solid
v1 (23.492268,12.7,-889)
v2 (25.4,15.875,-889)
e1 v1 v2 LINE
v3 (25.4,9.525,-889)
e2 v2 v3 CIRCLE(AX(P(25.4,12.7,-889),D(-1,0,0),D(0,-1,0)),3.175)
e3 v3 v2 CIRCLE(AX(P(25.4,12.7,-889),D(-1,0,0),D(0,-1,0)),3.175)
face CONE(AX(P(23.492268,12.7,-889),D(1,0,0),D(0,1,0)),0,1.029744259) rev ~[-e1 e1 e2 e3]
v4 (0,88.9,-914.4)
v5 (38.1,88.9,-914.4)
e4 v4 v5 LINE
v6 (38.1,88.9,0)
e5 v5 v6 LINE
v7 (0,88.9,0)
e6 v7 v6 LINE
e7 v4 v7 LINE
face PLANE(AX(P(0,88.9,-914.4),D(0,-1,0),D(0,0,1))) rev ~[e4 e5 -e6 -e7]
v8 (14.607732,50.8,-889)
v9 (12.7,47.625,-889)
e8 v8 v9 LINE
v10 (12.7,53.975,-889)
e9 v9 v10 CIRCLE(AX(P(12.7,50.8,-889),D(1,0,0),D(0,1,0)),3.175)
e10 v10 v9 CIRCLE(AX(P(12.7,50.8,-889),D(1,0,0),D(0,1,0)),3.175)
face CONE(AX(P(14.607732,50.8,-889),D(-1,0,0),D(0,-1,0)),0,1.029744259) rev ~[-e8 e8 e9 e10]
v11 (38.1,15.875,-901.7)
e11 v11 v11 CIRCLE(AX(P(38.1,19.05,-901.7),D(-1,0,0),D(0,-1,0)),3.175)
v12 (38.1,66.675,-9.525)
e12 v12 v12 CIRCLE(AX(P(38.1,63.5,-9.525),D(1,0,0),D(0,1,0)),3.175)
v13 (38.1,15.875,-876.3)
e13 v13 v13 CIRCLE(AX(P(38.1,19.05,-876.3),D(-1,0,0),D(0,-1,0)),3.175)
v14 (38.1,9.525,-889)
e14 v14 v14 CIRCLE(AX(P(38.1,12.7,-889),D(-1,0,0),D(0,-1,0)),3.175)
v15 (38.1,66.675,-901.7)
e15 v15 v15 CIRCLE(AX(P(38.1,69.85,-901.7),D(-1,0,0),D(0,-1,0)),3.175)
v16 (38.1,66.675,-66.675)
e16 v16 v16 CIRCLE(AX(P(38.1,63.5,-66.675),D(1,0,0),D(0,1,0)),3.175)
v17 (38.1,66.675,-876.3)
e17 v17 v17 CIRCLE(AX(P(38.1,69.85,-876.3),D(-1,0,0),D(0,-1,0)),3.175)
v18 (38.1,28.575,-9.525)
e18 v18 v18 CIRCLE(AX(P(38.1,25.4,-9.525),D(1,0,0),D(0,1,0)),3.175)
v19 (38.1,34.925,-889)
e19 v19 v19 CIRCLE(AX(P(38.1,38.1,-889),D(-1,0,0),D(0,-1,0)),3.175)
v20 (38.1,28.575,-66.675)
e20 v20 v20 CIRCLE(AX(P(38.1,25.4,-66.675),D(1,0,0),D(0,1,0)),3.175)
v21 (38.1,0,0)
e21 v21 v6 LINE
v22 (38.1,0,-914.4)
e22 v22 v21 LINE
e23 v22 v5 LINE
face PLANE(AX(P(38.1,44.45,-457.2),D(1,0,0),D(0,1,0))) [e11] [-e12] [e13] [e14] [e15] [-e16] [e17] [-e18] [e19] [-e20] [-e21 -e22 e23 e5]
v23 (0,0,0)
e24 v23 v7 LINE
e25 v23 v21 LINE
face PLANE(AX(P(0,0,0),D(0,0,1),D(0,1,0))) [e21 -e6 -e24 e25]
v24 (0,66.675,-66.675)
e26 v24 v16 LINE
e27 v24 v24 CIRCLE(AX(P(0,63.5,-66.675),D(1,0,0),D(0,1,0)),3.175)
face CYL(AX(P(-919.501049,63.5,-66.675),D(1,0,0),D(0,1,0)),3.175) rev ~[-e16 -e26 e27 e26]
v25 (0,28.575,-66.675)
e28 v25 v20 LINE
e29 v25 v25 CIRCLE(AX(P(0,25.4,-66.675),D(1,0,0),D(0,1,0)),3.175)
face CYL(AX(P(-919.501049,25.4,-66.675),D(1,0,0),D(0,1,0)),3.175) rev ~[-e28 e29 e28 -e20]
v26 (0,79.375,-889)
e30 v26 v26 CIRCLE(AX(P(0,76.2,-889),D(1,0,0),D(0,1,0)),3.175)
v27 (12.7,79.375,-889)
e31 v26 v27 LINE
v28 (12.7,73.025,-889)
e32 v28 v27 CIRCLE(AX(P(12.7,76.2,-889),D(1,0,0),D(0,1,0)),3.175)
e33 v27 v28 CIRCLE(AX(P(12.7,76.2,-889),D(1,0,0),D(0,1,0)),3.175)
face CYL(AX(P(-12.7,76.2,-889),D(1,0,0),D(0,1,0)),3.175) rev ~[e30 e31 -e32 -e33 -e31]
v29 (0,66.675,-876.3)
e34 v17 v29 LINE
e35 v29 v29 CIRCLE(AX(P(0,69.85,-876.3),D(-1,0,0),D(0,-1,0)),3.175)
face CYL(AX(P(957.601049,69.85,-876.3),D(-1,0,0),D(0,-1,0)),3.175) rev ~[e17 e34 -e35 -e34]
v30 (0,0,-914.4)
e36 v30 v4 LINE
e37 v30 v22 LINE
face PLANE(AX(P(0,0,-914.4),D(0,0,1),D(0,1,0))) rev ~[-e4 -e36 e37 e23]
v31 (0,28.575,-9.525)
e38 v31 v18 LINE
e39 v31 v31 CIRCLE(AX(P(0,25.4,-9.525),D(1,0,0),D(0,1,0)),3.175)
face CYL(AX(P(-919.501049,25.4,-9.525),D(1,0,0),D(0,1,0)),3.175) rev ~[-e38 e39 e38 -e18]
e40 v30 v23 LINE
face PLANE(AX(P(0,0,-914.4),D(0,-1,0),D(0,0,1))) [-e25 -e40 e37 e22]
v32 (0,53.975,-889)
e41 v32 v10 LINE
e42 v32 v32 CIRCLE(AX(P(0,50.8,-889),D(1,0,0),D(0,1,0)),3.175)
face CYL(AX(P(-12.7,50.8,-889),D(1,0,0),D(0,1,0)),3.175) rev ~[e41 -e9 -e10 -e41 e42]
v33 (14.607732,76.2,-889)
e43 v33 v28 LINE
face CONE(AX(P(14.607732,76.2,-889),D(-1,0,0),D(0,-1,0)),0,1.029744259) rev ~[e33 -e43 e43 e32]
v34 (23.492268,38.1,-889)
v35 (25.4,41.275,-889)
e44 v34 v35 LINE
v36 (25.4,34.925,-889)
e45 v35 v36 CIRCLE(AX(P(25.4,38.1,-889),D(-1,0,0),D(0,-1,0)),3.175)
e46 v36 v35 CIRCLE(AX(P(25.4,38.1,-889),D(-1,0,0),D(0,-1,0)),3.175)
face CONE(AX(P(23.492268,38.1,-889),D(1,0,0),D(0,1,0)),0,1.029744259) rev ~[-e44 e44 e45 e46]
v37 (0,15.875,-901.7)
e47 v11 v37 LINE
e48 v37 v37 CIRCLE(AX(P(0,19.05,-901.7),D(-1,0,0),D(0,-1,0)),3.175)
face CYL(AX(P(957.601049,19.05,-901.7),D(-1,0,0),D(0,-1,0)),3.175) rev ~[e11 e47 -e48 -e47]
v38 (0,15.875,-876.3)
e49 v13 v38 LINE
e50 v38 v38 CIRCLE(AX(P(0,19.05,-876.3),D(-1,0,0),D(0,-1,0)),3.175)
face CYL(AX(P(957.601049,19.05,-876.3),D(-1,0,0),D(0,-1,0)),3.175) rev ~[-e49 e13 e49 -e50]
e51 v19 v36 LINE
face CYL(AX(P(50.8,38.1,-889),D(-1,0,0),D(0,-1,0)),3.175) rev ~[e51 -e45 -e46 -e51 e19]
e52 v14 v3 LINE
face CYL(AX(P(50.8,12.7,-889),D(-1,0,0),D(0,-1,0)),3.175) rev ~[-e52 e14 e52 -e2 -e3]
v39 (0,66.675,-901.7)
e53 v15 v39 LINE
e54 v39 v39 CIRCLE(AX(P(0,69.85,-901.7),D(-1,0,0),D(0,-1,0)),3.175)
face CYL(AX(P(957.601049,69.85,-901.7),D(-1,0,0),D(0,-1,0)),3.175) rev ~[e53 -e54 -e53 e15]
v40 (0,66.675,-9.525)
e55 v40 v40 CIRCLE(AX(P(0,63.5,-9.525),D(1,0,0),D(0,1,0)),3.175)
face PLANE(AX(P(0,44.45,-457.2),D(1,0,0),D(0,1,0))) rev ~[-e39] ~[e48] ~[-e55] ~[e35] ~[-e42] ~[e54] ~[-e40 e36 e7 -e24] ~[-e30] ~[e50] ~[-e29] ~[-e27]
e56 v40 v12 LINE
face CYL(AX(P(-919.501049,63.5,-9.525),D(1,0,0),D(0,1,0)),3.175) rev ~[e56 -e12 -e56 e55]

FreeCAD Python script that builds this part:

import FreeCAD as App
import Part
import Sketcher

V = App.Vector
Q = App.Units.Quantity


def add_polygon(sketch, points):
    """Adds a closed chain of lines whose ends are joined by coincident constraints."""
    first, n = sketch.GeometryCount, len(points)
    for a, b in zip(points, points[1:] + points[:1]):
        sketch.addGeometry(Part.LineSegment(App.Vector(*a, 0), App.Vector(*b, 0)), False)
    for i in range(n):
        sketch.addConstraint(Sketcher.Constraint("Coincident", first + i, 2, first + (i + 1) % n, 1))

doc = App.newDocument("Part")
body = doc.addObject("PartDesign::Body", "Body")

# Sketch on YZ plane
sketch1 = doc.addObject("Sketcher::SketchObject", "Sketch")
body.addObject(sketch1)
sketch1.AttachmentSupport = (doc.YZ_Plane, [""])
sketch1.MapMode = "FlatFace"
add_polygon(sketch1, [(0, 0), (0, -914.4), (88.9, -914.4), (88.9, 0)])  # lines 0-3
sketch1.addConstraint([
    Sketcher.Constraint("Vertical", 0),
    Sketcher.Constraint("Horizontal", 1),
    Sketcher.Constraint("Vertical", 2),
    Sketcher.Constraint("Horizontal", 3),
    Sketcher.Constraint("Coincident", 3, 2, -1, 1),
    Sketcher.Constraint("DistanceY", 0, 2, 0, 1, Q("36 in")),
    Sketcher.Constraint("DistanceX", 1, 1, 1, 2, Q("3.5 in")),
])
pad1 = doc.addObject("PartDesign::Pad", "Pad")
body.addObject(pad1)
pad1.Profile = sketch1
pad1.Length = Q("1.5 in")

# Sketch on YZ plane
sketch2 = doc.addObject("Sketcher::SketchObject", "Sketch001")
body.addObject(sketch2)
sketch2.AttachmentSupport = (doc.YZ_Plane, [""])
sketch2.MapMode = "FlatFace"
sketch2.addGeometry([
    Part.Circle(V(63.5, -9.525, 0), V(0, 0, 1), 3.175),
    Part.Circle(V(25.4, -9.525, 0), V(0, 0, 1), 3.175),
    Part.Circle(V(63.5, -66.675, 0), V(0, 0, 1), 3.175),
    Part.Circle(V(25.4, -66.675, 0), V(0, 0, 1), 3.175),
], False)
sketch2.addConstraint([
    Sketcher.Constraint("Equal", 0, 1),
    Sketcher.Constraint("Equal", 1, 2),
    Sketcher.Constraint("Equal", 2, 3),
    Sketcher.Constraint("Horizontal", 0, 3, 1, 3),
    Sketcher.Constraint("Horizontal", 2, 3, 3, 3),
    Sketcher.Constraint("Vertical", 0, 3, 2, 3),
    Sketcher.Constraint("Vertical", 1, 3, 3, 3),
    Sketcher.Constraint("Diameter", 0, Q("0.25 in")),
    Sketcher.Constraint("DistanceX", -1, 1, 1, 3, Q("1 in")),
    Sketcher.Constraint("DistanceX", -1, 1, 0, 3, Q("2.5 in")),
    Sketcher.Constraint("DistanceY", 2, 3, 0, 3, Q("2.25 in")),
    Sketcher.Constraint("DistanceY", 0, 3, -1, 1, Q("0.375 in")),
])
doc.recompute()
hole = doc.addObject("PartDesign::Hole", "Hole")
body.addObject(hole)
hole.Profile = sketch2
hole.ThreadType = "None"
hole.Diameter = Q("0.25 in")
hole.DepthType = "ThroughAll"
hole.Reversed = True

# Sketch on YZ plane
sketch3 = doc.addObject("Sketcher::SketchObject", "Sketch002")
body.addObject(sketch3)
sketch3.AttachmentSupport = (doc.YZ_Plane, [""])
sketch3.MapMode = "FlatFace"
sketch3.AttachmentOffset = App.Placement(V(0, 0, 1.5 * 25.4), App.Rotation())
sketch3.addGeometry([
    Part.Circle(V(19.05, -876.3, 0), V(0, 0, 1), 3.175),
    Part.Circle(V(19.05, -901.7, 0), V(0, 0, 1), 3.175),
    Part.Circle(V(69.85, -876.3, 0), V(0, 0, 1), 3.175),
    Part.Circle(V(69.85, -901.7, 0), V(0, 0, 1), 3.175),
], False)
sketch3.addConstraint([
    Sketcher.Constraint("Equal", 0, 1),
    Sketcher.Constraint("Equal", 1, 2),
    Sketcher.Constraint("Equal", 2, 3),
    Sketcher.Constraint("Horizontal", 0, 3, 2, 3),
    Sketcher.Constraint("Horizontal", 1, 3, 3, 3),
    Sketcher.Constraint("Vertical", 0, 3, 1, 3),
    Sketcher.Constraint("Vertical", 2, 3, 3, 3),
    Sketcher.Constraint("Diameter", 0, Q("0.25 in")),
    Sketcher.Constraint("DistanceY", 1, 3, 0, 3, Q("1 in")),
    Sketcher.Constraint("DistanceX", 0, 3, 2, 3, Q("2 in")),
    Sketcher.Constraint("DistanceY", 0, 3, -1, 1, Q("34.5 in")),
    Sketcher.Constraint("DistanceX", -1, 1, 0, 3, Q("0.75 in")),
])
doc.recompute()
hole2 = doc.addObject("PartDesign::Hole", "Hole001")
body.addObject(hole2)
hole2.Profile = sketch3
hole2.ThreadType = "None"
hole2.Diameter = Q("0.25 in")
hole2.DepthType = "ThroughAll"

# Sketch on YZ plane
sketch4 = doc.addObject("Sketcher::SketchObject", "Sketch003")
body.addObject(sketch4)
sketch4.AttachmentSupport = (doc.YZ_Plane, [""])
sketch4.MapMode = "FlatFace"
sketch4.addGeometry([
    Part.Circle(V(76.2, -889, 0), V(0, 0, 1), 3.175),
    Part.Circle(V(50.8, -889, 0), V(0, 0, 1), 3.175),
], False)
sketch4.addConstraint([
    Sketcher.Constraint("Equal", 0, 1),
    Sketcher.Constraint("Horizontal", 0, 3, 1, 3),
    Sketcher.Constraint("Diameter", 0, Q("0.25 in")),
    Sketcher.Constraint("DistanceX", -1, 1, 0, 3, Q("3 in")),
    Sketcher.Constraint("DistanceY", 0, 3, -1, 1, Q("35 in")),
    Sketcher.Constraint("DistanceX", -1, 1, 1, 3, Q("2 in")),
])
doc.recompute()
hole3 = doc.addObject("PartDesign::Hole", "Hole002")
body.addObject(hole3)
hole3.Profile = sketch4
hole3.ThreadType = "None"
hole3.Diameter = Q("0.25 in")
hole3.DepthType = "Dimension"
hole3.Depth = Q("0.5 in")
hole3.DrillPoint = "Angled"
hole3.DrillPointAngle = 118
hole3.Reversed = True

# Sketch on YZ plane
sketch5 = doc.addObject("Sketcher::SketchObject", "Sketch004")
body.addObject(sketch5)
sketch5.AttachmentSupport = (doc.YZ_Plane, [""])
sketch5.MapMode = "FlatFace"
sketch5.AttachmentOffset = App.Placement(V(0, 0, 1.5 * 25.4), App.Rotation())
sketch5.addGeometry([
    Part.Circle(V(12.7, -889, 0), V(0, 0, 1), 3.175),
    Part.Circle(V(38.1, -889, 0), V(0, 0, 1), 3.175),
], False)
sketch5.addConstraint([
    Sketcher.Constraint("Equal", 0, 1),
    Sketcher.Constraint("Horizontal", 0, 3, 1, 3),
    Sketcher.Constraint("Diameter", 0, Q("0.25 in")),
    Sketcher.Constraint("DistanceY", 0, 3, -1, 1, Q("35 in")),
    Sketcher.Constraint("DistanceX", 0, 3, 1, 3, Q("1 in")),
    Sketcher.Constraint("DistanceX", -1, 1, 0, 3, Q("0.5 in")),
])
doc.recompute()
hole4 = doc.addObject("PartDesign::Hole", "Hole003")
body.addObject(hole4)
hole4.Profile = sketch5
hole4.ThreadType = "None"
hole4.Diameter = Q("0.25 in")
hole4.DepthType = "Dimension"
hole4.Depth = Q("0.5 in")
hole4.DrillPoint = "Angled"
hole4.DrillPointAngle = 118

doc.recompute()
